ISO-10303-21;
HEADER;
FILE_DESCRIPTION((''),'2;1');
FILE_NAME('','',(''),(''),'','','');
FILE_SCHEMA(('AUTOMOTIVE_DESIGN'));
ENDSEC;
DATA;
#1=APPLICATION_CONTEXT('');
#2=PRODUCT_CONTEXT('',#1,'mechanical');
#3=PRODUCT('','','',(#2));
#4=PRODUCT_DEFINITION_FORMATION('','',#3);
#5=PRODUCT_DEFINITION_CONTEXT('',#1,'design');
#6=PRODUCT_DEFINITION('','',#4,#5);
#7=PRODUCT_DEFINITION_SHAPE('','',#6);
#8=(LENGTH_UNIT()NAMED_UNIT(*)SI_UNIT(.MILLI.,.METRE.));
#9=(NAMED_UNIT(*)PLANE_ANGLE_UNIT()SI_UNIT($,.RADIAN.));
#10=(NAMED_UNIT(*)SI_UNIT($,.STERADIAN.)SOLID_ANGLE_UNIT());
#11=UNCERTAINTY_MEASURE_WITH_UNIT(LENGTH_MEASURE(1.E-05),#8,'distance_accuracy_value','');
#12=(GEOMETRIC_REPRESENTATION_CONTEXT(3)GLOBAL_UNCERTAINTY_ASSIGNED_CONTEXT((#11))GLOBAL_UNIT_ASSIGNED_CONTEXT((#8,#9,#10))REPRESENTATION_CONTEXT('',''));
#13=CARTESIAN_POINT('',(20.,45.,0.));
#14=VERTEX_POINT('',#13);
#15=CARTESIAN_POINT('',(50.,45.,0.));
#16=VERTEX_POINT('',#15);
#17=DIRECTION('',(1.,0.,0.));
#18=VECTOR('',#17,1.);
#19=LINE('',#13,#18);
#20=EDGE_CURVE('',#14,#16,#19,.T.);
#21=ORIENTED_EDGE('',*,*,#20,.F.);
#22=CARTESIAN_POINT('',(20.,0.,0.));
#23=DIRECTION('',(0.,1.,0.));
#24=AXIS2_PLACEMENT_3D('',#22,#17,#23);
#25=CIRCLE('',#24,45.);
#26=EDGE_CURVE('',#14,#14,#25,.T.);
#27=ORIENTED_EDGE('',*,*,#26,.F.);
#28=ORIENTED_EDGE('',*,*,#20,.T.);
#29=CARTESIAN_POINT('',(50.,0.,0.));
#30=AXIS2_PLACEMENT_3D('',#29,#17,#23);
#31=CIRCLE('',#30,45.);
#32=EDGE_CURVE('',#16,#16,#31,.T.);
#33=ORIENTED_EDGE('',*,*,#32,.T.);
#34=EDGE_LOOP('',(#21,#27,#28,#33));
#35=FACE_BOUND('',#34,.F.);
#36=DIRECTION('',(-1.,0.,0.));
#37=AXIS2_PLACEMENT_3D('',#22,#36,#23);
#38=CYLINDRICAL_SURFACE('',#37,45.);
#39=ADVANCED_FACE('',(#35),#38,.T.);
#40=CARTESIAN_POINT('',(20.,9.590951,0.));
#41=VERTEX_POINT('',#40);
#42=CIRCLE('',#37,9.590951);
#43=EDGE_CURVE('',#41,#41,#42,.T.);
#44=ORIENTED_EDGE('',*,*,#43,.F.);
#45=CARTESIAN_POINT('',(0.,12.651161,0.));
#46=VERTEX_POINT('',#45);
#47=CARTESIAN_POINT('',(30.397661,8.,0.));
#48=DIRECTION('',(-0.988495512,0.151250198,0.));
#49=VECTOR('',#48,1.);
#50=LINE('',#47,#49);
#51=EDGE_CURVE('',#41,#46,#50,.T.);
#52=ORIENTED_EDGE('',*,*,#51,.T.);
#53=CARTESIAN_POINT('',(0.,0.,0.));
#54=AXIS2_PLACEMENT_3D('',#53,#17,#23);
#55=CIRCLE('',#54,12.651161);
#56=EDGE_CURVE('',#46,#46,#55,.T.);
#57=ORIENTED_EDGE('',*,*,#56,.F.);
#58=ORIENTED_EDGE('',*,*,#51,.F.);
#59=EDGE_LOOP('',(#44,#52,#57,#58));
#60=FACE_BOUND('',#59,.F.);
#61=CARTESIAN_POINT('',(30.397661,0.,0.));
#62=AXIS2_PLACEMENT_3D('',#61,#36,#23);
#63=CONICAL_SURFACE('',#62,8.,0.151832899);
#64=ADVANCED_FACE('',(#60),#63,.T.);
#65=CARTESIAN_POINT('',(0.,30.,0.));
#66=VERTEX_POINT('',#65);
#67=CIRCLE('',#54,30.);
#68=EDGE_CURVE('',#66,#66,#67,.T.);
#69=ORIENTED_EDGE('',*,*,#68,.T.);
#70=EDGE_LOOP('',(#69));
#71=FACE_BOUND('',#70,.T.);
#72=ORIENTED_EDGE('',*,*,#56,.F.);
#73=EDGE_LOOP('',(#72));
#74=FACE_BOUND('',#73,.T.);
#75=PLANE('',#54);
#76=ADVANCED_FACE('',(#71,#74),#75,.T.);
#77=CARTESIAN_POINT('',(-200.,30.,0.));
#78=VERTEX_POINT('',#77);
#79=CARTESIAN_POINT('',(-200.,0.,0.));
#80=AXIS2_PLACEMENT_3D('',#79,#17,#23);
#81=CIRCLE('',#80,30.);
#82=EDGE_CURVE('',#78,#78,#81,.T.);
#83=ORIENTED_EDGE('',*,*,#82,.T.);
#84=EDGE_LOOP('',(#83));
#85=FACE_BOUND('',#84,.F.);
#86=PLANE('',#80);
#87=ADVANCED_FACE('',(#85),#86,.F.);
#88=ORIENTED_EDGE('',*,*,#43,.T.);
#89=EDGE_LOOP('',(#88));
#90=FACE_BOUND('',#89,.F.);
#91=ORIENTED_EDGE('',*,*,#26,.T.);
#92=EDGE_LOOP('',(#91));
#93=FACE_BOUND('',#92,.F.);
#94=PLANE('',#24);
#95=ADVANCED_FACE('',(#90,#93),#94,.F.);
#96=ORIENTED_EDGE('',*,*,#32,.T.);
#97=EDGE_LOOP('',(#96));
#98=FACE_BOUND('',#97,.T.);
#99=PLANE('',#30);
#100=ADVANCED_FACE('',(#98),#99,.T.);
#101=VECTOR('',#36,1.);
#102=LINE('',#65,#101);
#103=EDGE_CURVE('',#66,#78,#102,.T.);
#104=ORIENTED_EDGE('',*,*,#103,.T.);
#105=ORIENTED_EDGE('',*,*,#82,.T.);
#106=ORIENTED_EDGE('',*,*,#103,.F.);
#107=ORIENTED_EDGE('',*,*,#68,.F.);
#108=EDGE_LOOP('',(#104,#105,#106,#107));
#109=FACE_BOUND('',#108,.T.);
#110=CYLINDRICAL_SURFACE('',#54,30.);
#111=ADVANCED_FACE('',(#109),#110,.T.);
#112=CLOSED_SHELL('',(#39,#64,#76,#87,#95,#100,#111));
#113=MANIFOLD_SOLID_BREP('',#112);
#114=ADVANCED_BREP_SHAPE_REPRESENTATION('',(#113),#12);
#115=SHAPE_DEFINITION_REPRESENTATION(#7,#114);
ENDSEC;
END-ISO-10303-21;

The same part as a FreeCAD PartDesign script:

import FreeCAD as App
import Part
import Sketcher

V = App.Vector

doc = App.newDocument("Part")
body = doc.addObject("PartDesign::Body", "Body")

# Sketch on YZ plane
sketch1 = body.newObject("Sketcher::SketchObject", "Sketch")
sketch1.AttachmentSupport = (doc.getObject("YZ_Plane"), [""])
sketch1.MapMode = "FlatFace"
sketch1.addGeometry(Part.Circle(V(0, 0, 0), V(0, 0, 1), 30), False)
sketch1.addConstraint(Sketcher.Constraint("Coincident", 0, 3, -1, 1))
sketch1.addConstraint(Sketcher.Constraint("Diameter", 0, 60.0))
pad1 = body.newObject("PartDesign::Pad", "Pad")
pad1.Profile = sketch1
pad1.Length = 200
pad1.Reversed = True

# Sketch on XY plane
sketch2 = body.newObject("Sketcher::SketchObject", "Sketch001")
sketch2.AttachmentSupport = (doc.getObject("XY_Plane"), [""])
sketch2.MapMode = "FlatFace"
sketch2.addGeometry(Part.LineSegment(V(0, 12.651161, 0), V(0, 0, 0)), False)
sketch2.addGeometry(Part.LineSegment(V(0, 0, 0), V(30.397661, 0, 0)), False)
sketch2.addGeometry(Part.LineSegment(V(30.397661, 0, 0), V(30.397661, 8, 0)), False)
sketch2.addGeometry(Part.LineSegment(V(30.397661, 8, 0), V(0, 12.651161, 0)), False)
sketch2.addConstraint(Sketcher.Constraint("Coincident", 0, 2, 1, 1))
sketch2.addConstraint(Sketcher.Constraint("Coincident", 1, 2, 2, 1))
sketch2.addConstraint(Sketcher.Constraint("Coincident", 2, 2, 3, 1))
sketch2.addConstraint(Sketcher.Constraint("Coincident", 3, 2, 0, 1))
sketch2.addConstraint(Sketcher.Constraint("Vertical", 0))
sketch2.addConstraint(Sketcher.Constraint("Horizontal", 1))
sketch2.addConstraint(Sketcher.Constraint("Vertical", 2))
sketch2.addConstraint(Sketcher.Constraint("Coincident", 0, 2, -1, 1))
sketch2.addConstraint(Sketcher.Constraint("DistanceY", 2, 1, 2, 2, 8.0))
sketch2.addConstraint(Sketcher.Constraint("DistanceX", 1, 1, 1, 2, 30.397661))
sketch2.addConstraint(Sketcher.Constraint("DistanceY", 0, 2, 0, 1, 12.651161))
revolution = body.newObject("PartDesign::Revolution", "Revolution")
revolution.Profile = sketch2
revolution.ReferenceAxis = (sketch2, ["H_Axis"])
revolution.Angle = 360

# Sketch on YZ plane
sketch3 = body.newObject("Sketcher::SketchObject", "Sketch002")
sketch3.AttachmentSupport = (doc.getObject("YZ_Plane"), [""])
sketch3.MapMode = "FlatFace"
sketch3.AttachmentOffset = App.Placement(V(0, 0, 20), App.Rotation())
sketch3.addGeometry(Part.Circle(V(0, 0, 0), V(0, 0, 1), 45), False)
sketch3.addConstraint(Sketcher.Constraint("Coincident", 0, 3, -1, 1))
sketch3.addConstraint(Sketcher.Constraint("Diameter", 0, 90.0))
pad2 = body.newObject("PartDesign::Pad", "Pad001")
pad2.Profile = sketch3
pad2.Length = 30

doc.recompute()
